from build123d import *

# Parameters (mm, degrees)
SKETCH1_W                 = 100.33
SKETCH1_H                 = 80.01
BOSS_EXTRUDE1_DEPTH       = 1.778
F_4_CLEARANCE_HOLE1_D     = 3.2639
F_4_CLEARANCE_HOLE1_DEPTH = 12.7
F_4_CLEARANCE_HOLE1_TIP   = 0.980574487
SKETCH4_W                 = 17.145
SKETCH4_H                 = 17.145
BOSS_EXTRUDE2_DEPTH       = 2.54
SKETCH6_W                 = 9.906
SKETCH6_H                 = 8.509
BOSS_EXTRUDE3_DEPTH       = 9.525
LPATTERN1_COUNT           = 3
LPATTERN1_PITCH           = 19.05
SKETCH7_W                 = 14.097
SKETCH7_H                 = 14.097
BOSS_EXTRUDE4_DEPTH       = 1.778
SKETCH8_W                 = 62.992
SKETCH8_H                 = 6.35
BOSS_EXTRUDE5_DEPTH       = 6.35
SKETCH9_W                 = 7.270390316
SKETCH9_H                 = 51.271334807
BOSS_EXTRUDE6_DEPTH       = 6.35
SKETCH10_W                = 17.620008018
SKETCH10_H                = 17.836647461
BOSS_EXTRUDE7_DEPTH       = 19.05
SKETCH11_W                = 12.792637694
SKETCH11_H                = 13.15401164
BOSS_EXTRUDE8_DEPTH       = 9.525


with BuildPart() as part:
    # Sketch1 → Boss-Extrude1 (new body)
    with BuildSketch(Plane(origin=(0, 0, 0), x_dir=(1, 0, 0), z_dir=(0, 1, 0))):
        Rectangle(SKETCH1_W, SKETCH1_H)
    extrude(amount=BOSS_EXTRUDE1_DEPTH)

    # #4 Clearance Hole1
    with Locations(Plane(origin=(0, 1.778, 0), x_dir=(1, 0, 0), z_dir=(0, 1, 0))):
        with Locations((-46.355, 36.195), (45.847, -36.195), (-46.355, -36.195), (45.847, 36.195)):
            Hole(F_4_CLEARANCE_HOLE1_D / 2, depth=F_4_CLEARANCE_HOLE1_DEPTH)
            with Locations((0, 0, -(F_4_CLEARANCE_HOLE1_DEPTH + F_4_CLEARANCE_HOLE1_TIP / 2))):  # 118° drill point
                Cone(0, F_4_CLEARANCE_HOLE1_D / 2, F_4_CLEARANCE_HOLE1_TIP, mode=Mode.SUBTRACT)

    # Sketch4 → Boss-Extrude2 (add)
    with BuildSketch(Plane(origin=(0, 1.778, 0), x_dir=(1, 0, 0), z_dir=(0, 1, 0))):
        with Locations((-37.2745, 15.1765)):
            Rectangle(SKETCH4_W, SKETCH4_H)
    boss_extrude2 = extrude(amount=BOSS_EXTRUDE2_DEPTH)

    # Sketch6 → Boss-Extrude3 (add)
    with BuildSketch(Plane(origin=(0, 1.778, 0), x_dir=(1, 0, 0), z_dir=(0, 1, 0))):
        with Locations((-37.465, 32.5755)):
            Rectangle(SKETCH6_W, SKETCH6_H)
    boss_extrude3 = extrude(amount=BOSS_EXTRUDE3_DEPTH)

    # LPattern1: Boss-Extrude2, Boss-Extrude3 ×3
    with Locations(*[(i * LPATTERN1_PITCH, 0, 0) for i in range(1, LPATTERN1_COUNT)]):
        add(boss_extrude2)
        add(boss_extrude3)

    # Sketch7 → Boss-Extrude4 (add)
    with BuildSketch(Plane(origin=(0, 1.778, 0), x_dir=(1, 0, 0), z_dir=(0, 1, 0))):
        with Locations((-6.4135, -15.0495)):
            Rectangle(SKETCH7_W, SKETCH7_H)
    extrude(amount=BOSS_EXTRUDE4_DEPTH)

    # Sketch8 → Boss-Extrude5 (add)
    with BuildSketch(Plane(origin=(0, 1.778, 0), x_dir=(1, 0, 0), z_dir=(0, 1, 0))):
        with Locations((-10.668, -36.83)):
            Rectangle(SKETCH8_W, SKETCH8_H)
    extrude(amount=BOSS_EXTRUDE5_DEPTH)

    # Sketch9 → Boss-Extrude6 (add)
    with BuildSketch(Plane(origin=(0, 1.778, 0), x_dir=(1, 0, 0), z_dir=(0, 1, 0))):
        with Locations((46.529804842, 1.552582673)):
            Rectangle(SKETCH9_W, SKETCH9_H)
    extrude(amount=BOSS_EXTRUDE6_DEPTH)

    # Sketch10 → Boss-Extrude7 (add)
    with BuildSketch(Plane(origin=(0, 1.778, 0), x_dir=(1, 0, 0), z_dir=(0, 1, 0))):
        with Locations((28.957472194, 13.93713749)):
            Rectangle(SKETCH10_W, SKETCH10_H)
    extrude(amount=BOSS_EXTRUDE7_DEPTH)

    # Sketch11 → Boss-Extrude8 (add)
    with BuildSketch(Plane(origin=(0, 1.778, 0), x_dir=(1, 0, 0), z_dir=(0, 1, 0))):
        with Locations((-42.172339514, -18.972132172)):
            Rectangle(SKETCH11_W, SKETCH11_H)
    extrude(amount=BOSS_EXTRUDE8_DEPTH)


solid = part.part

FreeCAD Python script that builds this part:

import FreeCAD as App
import Part
import Sketcher
Q = App.Units.Quantity

doc = App.newDocument("Part")
body = doc.addObject("PartDesign::Body", "Body")

# Sketch on XZ plane
sketch1 = body.newObject("Sketcher::SketchObject", "Sketch")
sketch1.AttachmentSupport = (doc.getObject("XZ_Plane"), [""])
sketch1.MapMode = "FlatFace"
sketch1.addGeometry([
    Part.LineSegment(App.Vector(-50, -40, 0), App.Vector(-50, 40, 0)),
    Part.LineSegment(App.Vector(-50, 40, 0), App.Vector(50, 40, 0)),
    Part.LineSegment(App.Vector(50, 40, 0), App.Vector(50, -40, 0)),
    Part.LineSegment(App.Vector(50, -40, 0), App.Vector(-50, -40, 0)),
], False)
sketch1.addConstraint([
    Sketcher.Constraint("Coincident", 0, 2, 1, 1),
    Sketcher.Constraint("Coincident", 1, 2, 2, 1),
    Sketcher.Constraint("Coincident", 2, 2, 3, 1),
    Sketcher.Constraint("Coincident", 3, 2, 0, 1),
    Sketcher.Constraint("Vertical", 0),
    Sketcher.Constraint("Horizontal", 1),
    Sketcher.Constraint("Vertical", 2),
    Sketcher.Constraint("Horizontal", 3),
    Sketcher.Constraint("Symmetric", 0, 2, 2, 2, -1, 1),
    Sketcher.Constraint("DistanceX", 1, 1, 1, 2, Q("3.95 in")),
    Sketcher.Constraint("DistanceY", 0, 1, 0, 2, Q("3.15 in")),
])
pad1 = body.newObject("PartDesign::Pad", "Pad")
pad1.Profile = sketch1
pad1.Length = Q("0.07 in")
pad1.Reversed = True

# Sketch on XZ plane
sketch2 = body.newObject("Sketcher::SketchObject", "Sketch001")
sketch2.AttachmentSupport = (doc.getObject("XZ_Plane"), [""])
sketch2.MapMode = "FlatFace"
sketch2.AttachmentOffset = App.Placement(App.Vector(0, 0, -0.07 * 25.4), App.Rotation())
sketch2.addGeometry([
    Part.Circle(App.Vector(-46.4, -36.2, 0), App.Vector(0, 0, 1), 1.6),
    Part.Circle(App.Vector(45.8, 36.2, 0), App.Vector(0, 0, 1), 1.6),
    Part.Circle(App.Vector(-46.4, 36.2, 0), App.Vector(0, 0, 1), 1.6),
    Part.Circle(App.Vector(45.8, -36.2, 0), App.Vector(0, 0, 1), 1.6),
], False)
sketch2.addConstraint([
    Sketcher.Constraint("Equal", 0, 1),
    Sketcher.Constraint("Equal", 1, 2),
    Sketcher.Constraint("Equal", 2, 3),
    Sketcher.Constraint("Symmetric", 0, 3, 2, 3, -1),
    Sketcher.Constraint("Symmetric", 1, 3, 3, 3, -1),
    Sketcher.Constraint("Horizontal", 1, 3, 2, 3),
    Sketcher.Constraint("Diameter", 0, Q("0.1285 in")),
    Sketcher.Constraint("DistanceX", 0, 3, 1, 3, Q("3.63 in")),
    Sketcher.Constraint("DistanceY", 0, 3, 1, 3, Q("2.85 in")),
    Sketcher.Constraint("DistanceX", 0, 3, -1, 1, Q("1.825 in")),
])
doc.recompute()
hole = body.newObject("PartDesign::Hole", "Hole")
hole.Profile = sketch2
hole.ThreadType = "None"
hole.Diameter = Q("0.1285 in")
hole.DepthType = "Dimension"
hole.Depth = Q("0.5 in")
hole.DrillPoint = "Angled"
hole.DrillPointAngle = 118
hole.Reversed = True

# Sketch on XZ plane
sketch3 = body.newObject("Sketcher::SketchObject", "Sketch002")
sketch3.AttachmentSupport = (doc.getObject("XZ_Plane"), [""])
sketch3.MapMode = "FlatFace"
sketch3.AttachmentOffset = App.Placement(App.Vector(0, 0, -0.07 * 25.4), App.Rotation())
sketch3.addGeometry([
    Part.LineSegment(App.Vector(-46, -24, 0), App.Vector(-46, -7, 0)),
    Part.LineSegment(App.Vector(-46, -7, 0), App.Vector(-29, -7, 0)),
    Part.LineSegment(App.Vector(-29, -7, 0), App.Vector(-29, -24, 0)),
    Part.LineSegment(App.Vector(-29, -24, 0), App.Vector(-46, -24, 0)),
], False)
sketch3.addConstraint([
    Sketcher.Constraint("Coincident", 0, 2, 1, 1),
    Sketcher.Constraint("Coincident", 1, 2, 2, 1),
    Sketcher.Constraint("Coincident", 2, 2, 3, 1),
    Sketcher.Constraint("Coincident", 3, 2, 0, 1),
    Sketcher.Constraint("Vertical", 0),
    Sketcher.Constraint("Horizontal", 1),
    Sketcher.Constraint("Vertical", 2),
    Sketcher.Constraint("Horizontal", 3),
    Sketcher.Constraint("Equal", 3, 0),
    Sketcher.Constraint("DistanceX", 1, 1, 1, 2, Q("0.675 in")),
    Sketcher.Constraint("DistanceY", 0, 2, -1, 1, Q("0.26 in")),
    Sketcher.Constraint("DistanceX", 1, 2, -1, 1, Q("1.13 in")),
])
pad2 = body.newObject("PartDesign::Pad", "Pad001")
pad2.Profile = sketch3
pad2.Length = Q("0.1 in")
pad2.Reversed = True

# Sketch on XZ plane
sketch4 = body.newObject("Sketcher::SketchObject", "Sketch003")
sketch4.AttachmentSupport = (doc.getObject("XZ_Plane"), [""])
sketch4.MapMode = "FlatFace"
sketch4.AttachmentOffset = App.Placement(App.Vector(0, 0, -0.07 * 25.4), App.Rotation())
sketch4.addGeometry([
    Part.LineSegment(App.Vector(-42, -37, 0), App.Vector(-42, -28, 0)),
    Part.LineSegment(App.Vector(-42, -28, 0), App.Vector(-33, -28, 0)),
    Part.LineSegment(App.Vector(-33, -28, 0), App.Vector(-33, -37, 0)),
    Part.LineSegment(App.Vector(-33, -37, 0), App.Vector(-42, -37, 0)),
], False)
sketch4.addConstraint([
    Sketcher.Constraint("Coincident", 0, 2, 1, 1),
    Sketcher.Constraint("Coincident", 1, 2, 2, 1),
    Sketcher.Constraint("Coincident", 2, 2, 3, 1),
    Sketcher.Constraint("Coincident", 3, 2, 0, 1),
    Sketcher.Constraint("Vertical", 0),
    Sketcher.Constraint("Horizontal", 1),
    Sketcher.Constraint("Vertical", 2),
    Sketcher.Constraint("Horizontal", 3),
    Sketcher.Constraint("DistanceX", 1, 1, 1, 2, Q("0.39 in")),
    Sketcher.Constraint("DistanceY", 0, 1, 0, 2, Q("0.335 in")),
    Sketcher.Constraint("DistanceX", 0, 2, -1, 1, Q("1.67 in")),
    Sketcher.Constraint("DistanceY", 2, 2, -1, 1, Q("1.45 in")),
])
pad3 = body.newObject("PartDesign::Pad", "Pad002")
pad3.Profile = sketch4
pad3.Length = Q("0.375 in")
pad3.Reversed = True
doc.recompute()

linearpattern = body.newObject("PartDesign::LinearPattern", "LinearPattern")
linearpattern.Originals = [pad2, pad3]
linearpattern.Direction = (doc.getObject("X_Axis"), [""])
linearpattern.Mode = "offset"
linearpattern.Offset = Q("0.75 in")
linearpattern.Occurrences = 3
body.Tip = linearpattern

# Sketch on XZ plane
sketch5 = body.newObject("Sketcher::SketchObject", "Sketch004")
sketch5.AttachmentSupport = (doc.getObject("XZ_Plane"), [""])
sketch5.MapMode = "FlatFace"
sketch5.AttachmentOffset = App.Placement(App.Vector(0, 0, -0.07 * 25.4), App.Rotation())
sketch5.addGeometry([
    Part.LineSegment(App.Vector(-13, 8, 0), App.Vector(-13, 22, 0)),
    Part.LineSegment(App.Vector(-13, 22, 0), App.Vector(1, 22, 0)),
    Part.LineSegment(App.Vector(1, 22, 0), App.Vector(1, 8, 0)),
    Part.LineSegment(App.Vector(1, 8, 0), App.Vector(-13, 8, 0)),
], False)
sketch5.addConstraint([
    Sketcher.Constraint("Coincident", 0, 2, 1, 1),
    Sketcher.Constraint("Coincident", 1, 2, 2, 1),
    Sketcher.Constraint("Coincident", 2, 2, 3, 1),
    Sketcher.Constraint("Coincident", 3, 2, 0, 1),
    Sketcher.Constraint("Vertical", 0),
    Sketcher.Constraint("Horizontal", 1),
    Sketcher.Constraint("Vertical", 2),
    Sketcher.Constraint("Horizontal", 3),
    Sketcher.Constraint("Equal", 3, 0),
    Sketcher.Constraint("DistanceX", 1, 1, 1, 2, Q("0.555 in")),
    Sketcher.Constraint("DistanceX", 0, 2, -1, 1, Q("0.53 in")),
    Sketcher.Constraint("DistanceY", -1, 1, 0, 2, Q("0.87 in")),
])
pad4 = body.newObject("PartDesign::Pad", "Pad003")
pad4.Profile = sketch5
pad4.Length = Q("0.07 in")
pad4.Reversed = True

# Sketch on XZ plane
sketch6 = body.newObject("Sketcher::SketchObject", "Sketch005")
sketch6.AttachmentSupport = (doc.getObject("XZ_Plane"), [""])
sketch6.MapMode = "FlatFace"
sketch6.AttachmentOffset = App.Placement(App.Vector(0, 0, -0.07 * 25.4), App.Rotation())
sketch6.addGeometry([
    Part.LineSegment(App.Vector(-42, 34, 0), App.Vector(-42, 40, 0)),
    Part.LineSegment(App.Vector(-42, 40, 0), App.Vector(21, 40, 0)),
    Part.LineSegment(App.Vector(21, 40, 0), App.Vector(21, 34, 0)),
    Part.LineSegment(App.Vector(21, 34, 0), App.Vector(-42, 34, 0)),
], False)
sketch6.addConstraint([
    Sketcher.Constraint("Coincident", 0, 2, 1, 1),
    Sketcher.Constraint("Coincident", 1, 2, 2, 1),
    Sketcher.Constraint("Coincident", 2, 2, 3, 1),
    Sketcher.Constraint("Coincident", 3, 2, 0, 1),
    Sketcher.Constraint("Vertical", 0),
    Sketcher.Constraint("Horizontal", 1),
    Sketcher.Constraint("Vertical", 2),
    Sketcher.Constraint("Horizontal", 3),
    Sketcher.Constraint("DistanceX", 1, 1, 1, 2, Q("2.48 in")),
    Sketcher.Constraint("DistanceY", 0, 1, 0, 2, Q("0.25 in")),
    Sketcher.Constraint("DistanceX", 0, 2, -1, 1, Q("1.66 in")),
    Sketcher.Constraint("DistanceY", -1, 1, 0, 2, Q("1.575 in")),
])
pad5 = body.newObject("PartDesign::Pad", "Pad004")
pad5.Profile = sketch6
pad5.Length = Q("0.25 in")
pad5.Reversed = True

# Sketch on XZ plane
sketch7 = body.newObject("Sketcher::SketchObject", "Sketch006")
sketch7.AttachmentSupport = (doc.getObject("XZ_Plane"), [""])
sketch7.MapMode = "FlatFace"
sketch7.AttachmentOffset = App.Placement(App.Vector(0, 0, -0.07 * 25.4), App.Rotation())
sketch7.addGeometry([
    Part.LineSegment(App.Vector(43, -27, 0), App.Vector(43, 24, 0)),
    Part.LineSegment(App.Vector(43, 24, 0), App.Vector(50, 24, 0)),
    Part.LineSegment(App.Vector(50, 24, 0), App.Vector(50, -27, 0)),
    Part.LineSegment(App.Vector(50, -27, 0), App.Vector(43, -27, 0)),
], False)
sketch7.addConstraint([
    Sketcher.Constraint("Coincident", 0, 2, 1, 1),
    Sketcher.Constraint("Coincident", 1, 2, 2, 1),
    Sketcher.Constraint("Coincident", 2, 2, 3, 1),
    Sketcher.Constraint("Coincident", 3, 2, 0, 1),
    Sketcher.Constraint("Vertical", 0),
    Sketcher.Constraint("Horizontal", 1),
    Sketcher.Constraint("Vertical", 2),
    Sketcher.Constraint("Horizontal", 3),
    Sketcher.Constraint("DistanceX", -1, 1, 1, 2, Q("1.975 in")),
    Sketcher.Constraint("DistanceX", 1, 1, 1, 2, 7.27039),
    Sketcher.Constraint("DistanceY", 0, 1, 0, 2, 51.271335),
    Sketcher.Constraint("DistanceY", 2, 2, -1, 1, 27.18825),
])
pad6 = body.newObject("PartDesign::Pad", "Pad005")
pad6.Profile = sketch7
pad6.Length = Q("0.25 in")
pad6.Reversed = True

# Sketch on XZ plane
sketch8 = body.newObject("Sketcher::SketchObject", "Sketch007")
sketch8.AttachmentSupport = (doc.getObject("XZ_Plane"), [""])
sketch8.MapMode = "FlatFace"
sketch8.AttachmentOffset = App.Placement(App.Vector(0, 0, -0.07 * 25.4), App.Rotation())
sketch8.addGeometry([
    Part.LineSegment(App.Vector(20, -23, 0), App.Vector(20, -5, 0)),
    Part.LineSegment(App.Vector(20, -5, 0), App.Vector(38, -5, 0)),
    Part.LineSegment(App.Vector(38, -5, 0), App.Vector(38, -23, 0)),
    Part.LineSegment(App.Vector(38, -23, 0), App.Vector(20, -23, 0)),
], False)
sketch8.addConstraint([
    Sketcher.Constraint("Coincident", 0, 2, 1, 1),
    Sketcher.Constraint("Coincident", 1, 2, 2, 1),
    Sketcher.Constraint("Coincident", 2, 2, 3, 1),
    Sketcher.Constraint("Coincident", 3, 2, 0, 1),
    Sketcher.Constraint("Vertical", 0),
    Sketcher.Constraint("Horizontal", 1),
    Sketcher.Constraint("Vertical", 2),
    Sketcher.Constraint("Horizontal", 3),
    Sketcher.Constraint("DistanceX", 1, 1, 1, 2, 17.620008),
    Sketcher.Constraint("DistanceY", 0, 1, 0, 2, 17.836647),
    Sketcher.Constraint("DistanceX", -1, 1, 0, 2, 20.147468),
    Sketcher.Constraint("DistanceY", 2, 2, -1, 1, 22.855461),
])
pad7 = body.newObject("PartDesign::Pad", "Pad006")
pad7.Profile = sketch8
pad7.Length = Q("0.75 in")
pad7.Reversed = True

# Sketch on XZ plane
sketch9 = body.newObject("Sketcher::SketchObject", "Sketch008")
sketch9.AttachmentSupport = (doc.getObject("XZ_Plane"), [""])
sketch9.MapMode = "FlatFace"
sketch9.AttachmentOffset = App.Placement(App.Vector(0, 0, -0.07 * 25.4), App.Rotation())
sketch9.addGeometry([
    Part.LineSegment(App.Vector(-49, 12, 0), App.Vector(-49, 26, 0)),
    Part.LineSegment(App.Vector(-49, 26, 0), App.Vector(-36, 26, 0)),
    Part.LineSegment(App.Vector(-36, 26, 0), App.Vector(-36, 12, 0)),
    Part.LineSegment(App.Vector(-36, 12, 0), App.Vector(-49, 12, 0)),
], False)
sketch9.addConstraint([
    Sketcher.Constraint("Coincident", 0, 2, 1, 1),
    Sketcher.Constraint("Coincident", 1, 2, 2, 1),
    Sketcher.Constraint("Coincident", 2, 2, 3, 1),
    Sketcher.Constraint("Coincident", 3, 2, 0, 1),
    Sketcher.Constraint("Vertical", 0),
    Sketcher.Constraint("Horizontal", 1),
    Sketcher.Constraint("Vertical", 2),
    Sketcher.Constraint("Horizontal", 3),
    Sketcher.Constraint("DistanceY", 0, 1, 0, 2, 13.154012),
    Sketcher.Constraint("DistanceX", 1, 1, 1, 2, 12.792638),
    Sketcher.Constraint("DistanceX", 0, 2, -1, 1, 48.568658),
    Sketcher.Constraint("DistanceY", -1, 1, 0, 2, 25.549138),
])
pad8 = body.newObject("PartDesign::Pad", "Pad007")
pad8.Profile = sketch9
pad8.Length = Q("0.375 in")
pad8.Reversed = True

doc.recompute()
